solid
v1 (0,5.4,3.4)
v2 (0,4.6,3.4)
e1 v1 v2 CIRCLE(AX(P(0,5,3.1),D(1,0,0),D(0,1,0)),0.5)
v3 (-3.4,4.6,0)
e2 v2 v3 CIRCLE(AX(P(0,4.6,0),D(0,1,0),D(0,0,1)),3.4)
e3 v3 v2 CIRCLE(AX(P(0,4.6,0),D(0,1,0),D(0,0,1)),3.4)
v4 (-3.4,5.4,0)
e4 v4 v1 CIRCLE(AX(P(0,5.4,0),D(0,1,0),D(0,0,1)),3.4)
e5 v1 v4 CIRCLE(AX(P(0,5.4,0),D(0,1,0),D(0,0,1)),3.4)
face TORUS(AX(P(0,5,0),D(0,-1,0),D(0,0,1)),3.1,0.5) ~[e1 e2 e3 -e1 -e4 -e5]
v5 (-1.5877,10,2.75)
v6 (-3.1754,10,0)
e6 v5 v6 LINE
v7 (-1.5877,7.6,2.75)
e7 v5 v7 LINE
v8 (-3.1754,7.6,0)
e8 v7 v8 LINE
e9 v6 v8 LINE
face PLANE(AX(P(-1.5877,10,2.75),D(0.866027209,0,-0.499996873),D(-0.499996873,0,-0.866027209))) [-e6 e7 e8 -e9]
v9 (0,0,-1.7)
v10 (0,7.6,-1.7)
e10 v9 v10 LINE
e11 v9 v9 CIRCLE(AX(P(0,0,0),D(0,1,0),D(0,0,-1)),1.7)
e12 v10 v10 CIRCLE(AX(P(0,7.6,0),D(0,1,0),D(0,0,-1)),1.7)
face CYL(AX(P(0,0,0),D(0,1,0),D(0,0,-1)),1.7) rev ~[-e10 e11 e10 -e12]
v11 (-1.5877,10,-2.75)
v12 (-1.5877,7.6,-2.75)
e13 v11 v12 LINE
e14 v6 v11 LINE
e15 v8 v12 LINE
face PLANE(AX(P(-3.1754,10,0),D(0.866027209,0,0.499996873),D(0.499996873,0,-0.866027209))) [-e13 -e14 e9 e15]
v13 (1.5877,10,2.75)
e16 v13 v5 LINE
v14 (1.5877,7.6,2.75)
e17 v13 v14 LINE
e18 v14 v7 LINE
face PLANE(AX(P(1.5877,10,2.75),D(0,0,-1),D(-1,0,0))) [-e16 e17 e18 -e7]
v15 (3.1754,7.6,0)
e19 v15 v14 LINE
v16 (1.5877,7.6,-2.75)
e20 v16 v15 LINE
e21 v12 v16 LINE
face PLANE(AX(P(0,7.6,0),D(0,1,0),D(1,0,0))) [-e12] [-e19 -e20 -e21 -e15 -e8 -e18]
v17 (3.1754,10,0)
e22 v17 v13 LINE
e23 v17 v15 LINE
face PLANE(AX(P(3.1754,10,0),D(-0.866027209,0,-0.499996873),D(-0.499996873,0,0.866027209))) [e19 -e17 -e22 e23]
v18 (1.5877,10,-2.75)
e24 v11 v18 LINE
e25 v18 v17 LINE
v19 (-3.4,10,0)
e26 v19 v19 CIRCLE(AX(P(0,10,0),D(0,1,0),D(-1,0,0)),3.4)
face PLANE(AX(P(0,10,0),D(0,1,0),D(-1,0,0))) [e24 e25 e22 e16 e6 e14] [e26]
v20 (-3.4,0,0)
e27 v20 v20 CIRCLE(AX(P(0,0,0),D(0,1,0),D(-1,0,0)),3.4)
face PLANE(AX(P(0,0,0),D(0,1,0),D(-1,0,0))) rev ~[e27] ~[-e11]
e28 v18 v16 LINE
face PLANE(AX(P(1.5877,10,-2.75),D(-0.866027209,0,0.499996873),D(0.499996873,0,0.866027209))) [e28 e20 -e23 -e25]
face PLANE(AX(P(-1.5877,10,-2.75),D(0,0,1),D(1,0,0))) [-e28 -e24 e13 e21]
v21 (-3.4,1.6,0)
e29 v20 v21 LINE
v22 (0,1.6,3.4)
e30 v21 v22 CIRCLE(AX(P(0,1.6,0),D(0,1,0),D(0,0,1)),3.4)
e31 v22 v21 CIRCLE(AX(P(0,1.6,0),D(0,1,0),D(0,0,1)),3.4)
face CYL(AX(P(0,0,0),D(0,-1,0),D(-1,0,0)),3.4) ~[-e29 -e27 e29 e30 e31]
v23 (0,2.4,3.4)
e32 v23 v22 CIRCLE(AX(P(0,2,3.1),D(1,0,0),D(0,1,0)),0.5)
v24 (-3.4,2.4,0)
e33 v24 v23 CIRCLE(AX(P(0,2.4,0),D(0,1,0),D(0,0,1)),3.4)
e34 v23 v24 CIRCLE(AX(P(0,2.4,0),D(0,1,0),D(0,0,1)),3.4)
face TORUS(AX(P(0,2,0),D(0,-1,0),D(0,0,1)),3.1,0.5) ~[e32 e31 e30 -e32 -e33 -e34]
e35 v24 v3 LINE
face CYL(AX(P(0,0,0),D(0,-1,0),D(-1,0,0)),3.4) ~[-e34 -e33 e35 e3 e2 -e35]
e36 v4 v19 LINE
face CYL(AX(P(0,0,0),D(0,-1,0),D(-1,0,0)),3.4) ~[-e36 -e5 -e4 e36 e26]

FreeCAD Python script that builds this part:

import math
import FreeCAD as App
import Part
import Sketcher

V = App.Vector
Q = App.Units.Quantity

doc = App.newDocument("Part")
body = doc.addObject("PartDesign::Body", "Body")

# Sketch on XZ plane
sketch1 = body.newObject("Sketcher::SketchObject", "Sketch")
sketch1.AttachmentSupport = (doc.getObject("XZ_Plane"), [""])
sketch1.MapMode = "FlatFace"
sketch1.addGeometry(Part.Circle(V(0, 0, 0), V(0, 0, 1), 3.4), False)
sketch1.addConstraint([
    Sketcher.Constraint("Coincident", 0, 3, -1, 1),
    Sketcher.Constraint("Diameter", 0, Q("6.8 mm")),
])
pad1 = body.newObject("PartDesign::Pad", "Pad")
pad1.Profile = sketch1
pad1.Length = 10
pad1.Reversed = True

# Sketch on XZ plane
sketch2 = body.newObject("Sketcher::SketchObject", "Sketch001")
sketch2.AttachmentSupport = (doc.getObject("XZ_Plane"), [""])
sketch2.MapMode = "FlatFace"
sketch2.AttachmentOffset = App.Placement(V(0, 0, -10), App.Rotation())
sketch2.addGeometry([
    Part.LineSegment(V(-1.6, -2.8, 0), V(-3.2, 0, 0)),  # 0
    Part.LineSegment(V(-3.2, 0, 0), V(-1.6, 2.8, 0)),  # 1
    Part.LineSegment(V(-1.6, 2.8, 0), V(1.6, 2.8, 0)),  # 2
    Part.LineSegment(V(1.6, 2.8, 0), V(3.2, 0, 0)),  # 3
    Part.LineSegment(V(3.2, 0, 0), V(1.6, -2.8, 0)),  # 4
    Part.LineSegment(V(1.6, -2.8, 0), V(-1.6, -2.8, 0)),  # 5
], False)
sketch2.addConstraint([
    Sketcher.Constraint("Coincident", 0, 2, 1, 1),
    Sketcher.Constraint("Coincident", 1, 2, 2, 1),
    Sketcher.Constraint("Coincident", 2, 2, 3, 1),
    Sketcher.Constraint("Coincident", 3, 2, 4, 1),
    Sketcher.Constraint("Coincident", 4, 2, 5, 1),
    Sketcher.Constraint("Coincident", 5, 2, 0, 1),
    Sketcher.Constraint("Horizontal", 2),
    Sketcher.Constraint("Horizontal", 5),
    Sketcher.Constraint("Symmetric", 0, 2, 3, 2, -1, 1),
    Sketcher.Constraint("Symmetric", 1, 2, 4, 2, -1, 1),
    Sketcher.Constraint("PointOnObject", 0, 2, -1),
    Sketcher.Constraint("Parallel", 0, 3),
    Sketcher.Constraint("Vertical", 2, 2, 4, 2),
    Sketcher.Constraint("DistanceY", 4, 2, 2, 2, Q("5.5 mm")),
    Sketcher.Constraint("Angle", 0, Q("119.9998 deg")),
    Sketcher.Constraint("DistanceX", 2, 1, 2, 2, Q("3.1754 mm")),
])
pocket1 = body.newObject("PartDesign::Pocket", "Pocket")
pocket1.Profile = sketch2
pocket1.Length = 2.4
pocket1.Reversed = True

# Sketch on XZ plane
sketch3 = body.newObject("Sketcher::SketchObject", "Sketch002")
sketch3.AttachmentSupport = (doc.getObject("XZ_Plane"), [""])
sketch3.MapMode = "FlatFace"
sketch3.addGeometry(Part.Circle(V(0, 0, 0), V(0, 0, 1), 1.7), False)
sketch3.addConstraint([
    Sketcher.Constraint("Coincident", 0, 3, -1, 1),
    Sketcher.Constraint("Diameter", 0, Q("3.4 mm")),
])
doc.recompute()
hole = body.newObject("PartDesign::Hole", "Hole")
hole.Profile = sketch3
hole.ThreadType = "None"
hole.Diameter = 3.4
hole.DepthType = "ThroughAll"

# Sketch on YZ plane
sketch4 = body.newObject("Sketcher::SketchObject", "Sketch003")
sketch4.AttachmentSupport = (doc.getObject("YZ_Plane"), [""])
sketch4.MapMode = "FlatFace"
sketch4.addGeometry([
    Part.LineSegment(V(1.6, 3.4, 0), V(2.4, 3.4, 0)),
    Part.ArcOfCircle(Part.Circle(V(2, 3.1, 0), V(0, 0, 1), 0.5), math.radians(37), math.radians(143)),
    Part.LineSegment(V(4.6, 3.4, 0), V(5.4, 3.4, 0)),
    Part.ArcOfCircle(Part.Circle(V(5, 3.1, 0), V(0, 0, 1), 0.5), math.radians(37), math.radians(143)),
], False)
sketch4.addConstraint([
    Sketcher.Constraint("Coincident", 0, 1, 1, 2),
    Sketcher.Constraint("Coincident", 1, 1, 0, 2),
    Sketcher.Constraint("Coincident", 2, 1, 3, 2),
    Sketcher.Constraint("Coincident", 3, 1, 2, 2),
    Sketcher.Constraint("Horizontal", 0),
    Sketcher.Constraint("Horizontal", 2),
    Sketcher.Constraint("Equal", 1, 3),
    Sketcher.Constraint("Horizontal", 1, 3, 3, 3),
    Sketcher.Constraint("Horizontal", 1, 1, 2, 1),
    Sketcher.Constraint("Radius", 1, Q("0.5 mm")),
    Sketcher.Constraint("DistanceX", -1, 1, 3, 3, Q("5 mm")),
    Sketcher.Constraint("DistanceX", 1, 3, 3, 3, Q("3 mm")),
    Sketcher.Constraint("DistanceY", -1, 1, 1, 3, Q("3.1 mm")),
    Sketcher.Constraint("DistanceX", 0, 1, 0, 2, Q("0.8 mm")),
])
revolution = body.newObject("PartDesign::Revolution", "Revolution")
revolution.Profile = sketch4
revolution.ReferenceAxis = (sketch4, ["H_Axis"])
revolution.Angle = 360

doc.recompute()
